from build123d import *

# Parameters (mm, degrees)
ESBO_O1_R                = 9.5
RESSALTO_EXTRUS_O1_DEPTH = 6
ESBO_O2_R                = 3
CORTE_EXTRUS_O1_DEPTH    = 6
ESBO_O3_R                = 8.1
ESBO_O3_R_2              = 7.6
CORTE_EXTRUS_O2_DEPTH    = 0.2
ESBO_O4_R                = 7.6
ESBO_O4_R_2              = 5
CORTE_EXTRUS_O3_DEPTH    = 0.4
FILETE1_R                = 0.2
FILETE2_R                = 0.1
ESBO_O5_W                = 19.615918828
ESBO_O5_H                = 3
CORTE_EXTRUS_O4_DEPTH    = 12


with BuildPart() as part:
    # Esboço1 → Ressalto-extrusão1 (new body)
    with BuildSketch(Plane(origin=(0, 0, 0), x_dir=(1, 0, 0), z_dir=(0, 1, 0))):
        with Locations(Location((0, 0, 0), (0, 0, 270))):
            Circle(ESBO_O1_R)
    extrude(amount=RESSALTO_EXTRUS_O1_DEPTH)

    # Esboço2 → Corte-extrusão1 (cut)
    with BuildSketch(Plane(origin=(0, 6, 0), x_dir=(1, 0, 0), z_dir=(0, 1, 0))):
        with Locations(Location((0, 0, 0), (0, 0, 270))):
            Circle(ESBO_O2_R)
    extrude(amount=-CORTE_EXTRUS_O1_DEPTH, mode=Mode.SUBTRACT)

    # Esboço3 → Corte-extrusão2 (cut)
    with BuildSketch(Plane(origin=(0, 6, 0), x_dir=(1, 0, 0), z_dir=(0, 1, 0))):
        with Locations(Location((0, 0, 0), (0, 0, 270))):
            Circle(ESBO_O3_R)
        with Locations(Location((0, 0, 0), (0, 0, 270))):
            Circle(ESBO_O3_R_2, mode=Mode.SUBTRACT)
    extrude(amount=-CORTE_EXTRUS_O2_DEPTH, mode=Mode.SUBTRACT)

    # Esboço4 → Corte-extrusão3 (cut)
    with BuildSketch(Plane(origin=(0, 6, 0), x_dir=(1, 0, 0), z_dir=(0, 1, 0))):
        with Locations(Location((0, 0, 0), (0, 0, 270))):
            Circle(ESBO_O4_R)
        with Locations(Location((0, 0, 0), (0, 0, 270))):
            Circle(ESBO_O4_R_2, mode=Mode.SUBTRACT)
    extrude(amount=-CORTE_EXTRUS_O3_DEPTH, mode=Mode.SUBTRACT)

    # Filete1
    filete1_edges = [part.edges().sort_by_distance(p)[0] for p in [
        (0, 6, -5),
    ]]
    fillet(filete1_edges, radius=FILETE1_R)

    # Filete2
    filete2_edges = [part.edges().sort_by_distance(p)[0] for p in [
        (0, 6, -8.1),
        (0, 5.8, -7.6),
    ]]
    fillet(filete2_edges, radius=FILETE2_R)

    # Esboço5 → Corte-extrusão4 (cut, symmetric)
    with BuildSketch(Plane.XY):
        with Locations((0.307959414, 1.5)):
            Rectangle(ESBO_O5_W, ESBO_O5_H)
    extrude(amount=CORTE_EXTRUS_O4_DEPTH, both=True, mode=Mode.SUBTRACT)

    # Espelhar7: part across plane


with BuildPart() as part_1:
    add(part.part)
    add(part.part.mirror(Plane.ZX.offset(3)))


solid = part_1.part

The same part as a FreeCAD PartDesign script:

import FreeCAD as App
import Part
import Sketcher
Q = App.Units.Quantity


def edges_at(feature, points):
    """Names of the edges that pass closest to the given points."""
    edges = feature.Shape.Edges
    near = lambda p: min(range(len(edges)), key=lambda i: edges[i].distToShape(Part.Vertex(*p))[0])
    return sorted({f"Edge{near(p) + 1}" for p in points})

doc = App.newDocument("Part")
body = doc.addObject("PartDesign::Body", "Body")

sketch1 = body.newObject("Sketcher::SketchObject", "Sketch")
sketch1.AttachmentSupport = (doc.getObject("XZ_Plane"), [""])
sketch1.MapMode = "FlatFace"
sketch1.addGeometry(Part.Circle(App.Vector(0, 0, 0), App.Vector(0, 0, 1), 10), False)
sketch1.addConstraint([
    Sketcher.Constraint("Coincident", 0, 3, -1, 1),
    Sketcher.Constraint("Diameter", 0, Q("19 mm")),
])
pad1 = body.newObject("PartDesign::Pad", "Pad")
pad1.Profile = sketch1
pad1.Length = 6
pad1.Reversed = True

sketch2 = body.newObject("Sketcher::SketchObject", "Sketch001")
sketch2.AttachmentSupport = (doc.getObject("XZ_Plane"), [""])
sketch2.MapMode = "FlatFace"
sketch2.AttachmentOffset = App.Placement(App.Vector(0, 0, -6), App.Rotation())
sketch2.addGeometry(Part.Circle(App.Vector(0, 0, 0), App.Vector(0, 0, 1), 3), False)
sketch2.addConstraint([
    Sketcher.Constraint("Coincident", 0, 3, -1, 1),
    Sketcher.Constraint("Diameter", 0, Q("6 mm")),
])
pocket1 = body.newObject("PartDesign::Pocket", "Pocket")
pocket1.Profile = sketch2
pocket1.Length = 6
pocket1.Reversed = True

sketch3 = body.newObject("Sketcher::SketchObject", "Sketch002")
sketch3.AttachmentSupport = (doc.getObject("XZ_Plane"), [""])
sketch3.MapMode = "FlatFace"
sketch3.AttachmentOffset = App.Placement(App.Vector(0, 0, -6), App.Rotation())
sketch3.addGeometry([
    Part.Circle(App.Vector(0, 0, 0), App.Vector(0, 0, 1), 8),
    Part.Circle(App.Vector(0, 0, 0), App.Vector(0, 0, 1), 8),
], False)
sketch3.addConstraint([
    Sketcher.Constraint("Coincident", 0, 3, -1, 1),
    Sketcher.Constraint("Coincident", 1, 3, -1, 1),
    Sketcher.Constraint("Diameter", 0, Q("16.2 mm")),
    Sketcher.Constraint("Diameter", 1, Q("15.2 mm")),
])
pocket2 = body.newObject("PartDesign::Pocket", "Pocket001")
pocket2.Profile = sketch3
pocket2.Length = 0.2
pocket2.Reversed = True

sketch4 = body.newObject("Sketcher::SketchObject", "Sketch003")
sketch4.AttachmentSupport = (doc.getObject("XZ_Plane"), [""])
sketch4.MapMode = "FlatFace"
sketch4.AttachmentOffset = App.Placement(App.Vector(0, 0, -6), App.Rotation())
sketch4.addGeometry([
    Part.Circle(App.Vector(0, 0, 0), App.Vector(0, 0, 1), 8),
    Part.Circle(App.Vector(0, 0, 0), App.Vector(0, 0, 1), 5),
], False)
sketch4.addConstraint([
    Sketcher.Constraint("Coincident", 0, 3, -1, 1),
    Sketcher.Constraint("Coincident", 1, 3, -1, 1),
    Sketcher.Constraint("Diameter", 1, Q("10 mm")),
    Sketcher.Constraint("Diameter", 0, Q("15.2 mm")),
])
pocket3 = body.newObject("PartDesign::Pocket", "Pocket002")
pocket3.Profile = sketch4
pocket3.Length = 0.4
pocket3.Reversed = True
doc.recompute()

fillet = body.newObject("PartDesign::Fillet", "Fillet")
fillet.Base = (pocket3, edges_at(pocket3, [(0, 6, -5)]))
fillet.Radius = 0.2
doc.recompute()

fillet2 = body.newObject("PartDesign::Fillet", "Fillet001")
fillet2.Base = (fillet, edges_at(fillet, [(0, 6, -8.1), (0, 5.8, -7.6)]))
fillet2.Radius = 0.1

sketch5 = body.newObject("Sketcher::SketchObject", "Sketch004")
sketch5.AttachmentSupport = (doc.getObject("XY_Plane"), [""])
sketch5.MapMode = "FlatFace"
sketch5.addGeometry([
    Part.LineSegment(App.Vector(-9.5, 3, 0), App.Vector(-9.5, 0, 0)),
    Part.LineSegment(App.Vector(-9.5, 0, 0), App.Vector(10.1, 0, 0)),
    Part.LineSegment(App.Vector(10.1, 0, 0), App.Vector(10.1, 3, 0)),
    Part.LineSegment(App.Vector(10.1, 3, 0), App.Vector(-9.5, 3, 0)),
], False)
sketch5.addConstraint([
    Sketcher.Constraint("Coincident", 0, 2, 1, 1),
    Sketcher.Constraint("Coincident", 1, 2, 2, 1),
    Sketcher.Constraint("Coincident", 2, 2, 3, 1),
    Sketcher.Constraint("Coincident", 3, 2, 0, 1),
    Sketcher.Constraint("Vertical", 0),
    Sketcher.Constraint("Horizontal", 1),
    Sketcher.Constraint("Vertical", 2),
    Sketcher.Constraint("Horizontal", 3),
    Sketcher.Constraint("PointOnObject", 0, 2, -1),
    Sketcher.Constraint("DistanceY", 0, 2, 0, 1, Q("3 mm")),
    Sketcher.Constraint("DistanceX", 0, 2, -1, 1, Q("9.5 mm")),
    Sketcher.Constraint("DistanceX", 1, 1, 1, 2, Q("19.615919 mm")),
])
pocket4 = body.newObject("PartDesign::Pocket", "Pocket003")
pocket4.Profile = sketch5
pocket4.Length = 24
pocket4.Midplane = True
body2 = doc.addObject("PartDesign::Body", "Body001")
doc.recompute()

body2.BaseFeature = body
doc.recompute()

mirroring = doc.addObject("Part::Mirroring", "Mirroring")
mirroring.Source = body
mirroring.Base = App.Vector(0, 3, 0)
mirroring.Normal = App.Vector(0, 1, 0)
body3 = doc.addObject("PartDesign::Body", "Body002")
body3.BaseFeature = mirroring
boolean = body2.newObject("PartDesign::Boolean", "Boolean")
boolean.Type = "Fuse"
boolean.addObjects([body3])
doc.recompute()
mirroring.Visibility = False

doc.recompute()
